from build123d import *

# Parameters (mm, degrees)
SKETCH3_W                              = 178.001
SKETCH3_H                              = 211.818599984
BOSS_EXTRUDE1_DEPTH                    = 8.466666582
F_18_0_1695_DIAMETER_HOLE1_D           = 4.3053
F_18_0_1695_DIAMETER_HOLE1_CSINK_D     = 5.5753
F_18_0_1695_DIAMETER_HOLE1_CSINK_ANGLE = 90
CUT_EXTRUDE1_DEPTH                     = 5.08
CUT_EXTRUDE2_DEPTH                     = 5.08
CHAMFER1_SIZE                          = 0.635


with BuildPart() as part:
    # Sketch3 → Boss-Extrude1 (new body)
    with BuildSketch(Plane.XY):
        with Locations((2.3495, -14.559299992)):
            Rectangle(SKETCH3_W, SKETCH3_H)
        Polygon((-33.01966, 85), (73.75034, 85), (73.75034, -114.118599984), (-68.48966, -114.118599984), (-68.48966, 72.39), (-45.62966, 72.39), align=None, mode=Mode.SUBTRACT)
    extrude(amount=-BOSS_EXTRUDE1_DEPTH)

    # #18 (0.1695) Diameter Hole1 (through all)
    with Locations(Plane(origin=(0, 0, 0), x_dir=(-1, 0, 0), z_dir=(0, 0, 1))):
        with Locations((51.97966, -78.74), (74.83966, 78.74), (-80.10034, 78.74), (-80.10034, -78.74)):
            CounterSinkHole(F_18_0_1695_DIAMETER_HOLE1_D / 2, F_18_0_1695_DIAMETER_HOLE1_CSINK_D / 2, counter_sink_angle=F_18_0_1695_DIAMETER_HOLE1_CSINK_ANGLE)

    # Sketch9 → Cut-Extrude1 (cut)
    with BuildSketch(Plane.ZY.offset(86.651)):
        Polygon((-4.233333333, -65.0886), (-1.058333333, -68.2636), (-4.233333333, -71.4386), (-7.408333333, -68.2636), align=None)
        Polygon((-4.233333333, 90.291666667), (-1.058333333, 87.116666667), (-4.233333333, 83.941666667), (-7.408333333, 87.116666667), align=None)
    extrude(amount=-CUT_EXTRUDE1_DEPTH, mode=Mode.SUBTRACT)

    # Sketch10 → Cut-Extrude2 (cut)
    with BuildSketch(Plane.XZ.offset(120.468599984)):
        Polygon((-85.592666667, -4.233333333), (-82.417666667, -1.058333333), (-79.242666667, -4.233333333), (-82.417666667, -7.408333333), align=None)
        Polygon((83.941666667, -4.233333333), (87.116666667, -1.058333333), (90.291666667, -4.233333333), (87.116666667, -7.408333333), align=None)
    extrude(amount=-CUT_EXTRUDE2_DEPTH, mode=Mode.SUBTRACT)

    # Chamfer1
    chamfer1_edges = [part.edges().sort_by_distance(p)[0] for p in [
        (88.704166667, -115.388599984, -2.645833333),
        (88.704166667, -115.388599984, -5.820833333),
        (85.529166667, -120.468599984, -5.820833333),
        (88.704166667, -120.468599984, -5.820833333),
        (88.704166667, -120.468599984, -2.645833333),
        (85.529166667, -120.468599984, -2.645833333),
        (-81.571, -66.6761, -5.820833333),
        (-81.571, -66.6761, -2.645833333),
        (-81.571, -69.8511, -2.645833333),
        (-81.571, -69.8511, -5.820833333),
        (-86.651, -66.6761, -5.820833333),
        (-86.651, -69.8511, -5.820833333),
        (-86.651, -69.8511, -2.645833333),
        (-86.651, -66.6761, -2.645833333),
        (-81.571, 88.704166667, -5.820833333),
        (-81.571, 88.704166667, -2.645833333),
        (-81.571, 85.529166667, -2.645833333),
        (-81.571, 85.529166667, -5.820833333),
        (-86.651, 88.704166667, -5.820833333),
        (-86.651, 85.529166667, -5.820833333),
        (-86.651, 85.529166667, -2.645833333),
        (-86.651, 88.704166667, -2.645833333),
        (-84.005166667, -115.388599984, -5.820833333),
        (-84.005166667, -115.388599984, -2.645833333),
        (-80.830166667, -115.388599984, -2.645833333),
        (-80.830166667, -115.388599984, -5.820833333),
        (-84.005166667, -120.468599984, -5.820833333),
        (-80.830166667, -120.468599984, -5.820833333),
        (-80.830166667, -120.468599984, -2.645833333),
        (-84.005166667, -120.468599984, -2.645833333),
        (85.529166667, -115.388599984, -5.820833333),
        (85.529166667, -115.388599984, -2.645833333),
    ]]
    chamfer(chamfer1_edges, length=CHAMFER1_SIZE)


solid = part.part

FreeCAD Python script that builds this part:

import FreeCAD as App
import Part
import Sketcher

V = App.Vector
Q = App.Units.Quantity


def edges_at(feature, points):
    """Names of the edges that pass closest to the given points."""
    edges = feature.Shape.Edges
    near = lambda p: min(range(len(edges)), key=lambda i: edges[i].distToShape(Part.Vertex(*p))[0])
    return sorted({f"Edge{near(p) + 1}" for p in points})


def add_polygon(sketch, points):
    """Adds a closed chain of lines whose ends are joined by coincident constraints."""
    first, n = sketch.GeometryCount, len(points)
    for a, b in zip(points, points[1:] + points[:1]):
        sketch.addGeometry(Part.LineSegment(App.Vector(*a, 0), App.Vector(*b, 0)), False)
    for i in range(n):
        sketch.addConstraint(Sketcher.Constraint("Coincident", first + i, 2, first + (i + 1) % n, 1))

doc = App.newDocument("Part")
body = doc.addObject("PartDesign::Body", "Body")

# Sketch on XY plane
sketch1 = body.newObject("Sketcher::SketchObject", "Sketch")
sketch1.AttachmentSupport = (doc.getObject("XY_Plane"), [""])
sketch1.MapMode = "FlatFace"
add_polygon(sketch1, [(-87, 91), (-87, -120), (91, -120), (91, 91)])  # lines 0-3
add_polygon(sketch1, [(-46, 72), (-33, 85), (74, 85), (74, -114), (-68, -114), (-68, 72)])  # lines 4-9
sketch1.addConstraint(Sketcher.Constraint("Vertical", 0))
sketch1.addConstraint(Sketcher.Constraint("Horizontal", 1))
sketch1.addConstraint(Sketcher.Constraint("Vertical", 2))
sketch1.addConstraint(Sketcher.Constraint("Horizontal", 3))
sketch1.addConstraint(Sketcher.Constraint("Horizontal", 5))
sketch1.addConstraint(Sketcher.Constraint("Vertical", 6))
sketch1.addConstraint(Sketcher.Constraint("Horizontal", 7))
sketch1.addConstraint(Sketcher.Constraint("Vertical", 8))
sketch1.addConstraint(Sketcher.Constraint("Horizontal", 9))
sketch1.addConstraint(Sketcher.Constraint("DistanceX", 7, 2, 7, 1, Q("5.6 in")))
sketch1.addConstraint(Sketcher.Constraint("DistanceX", 9, 1, 9, 2, Q("0.9 in")))
sketch1.addConstraint(Sketcher.Constraint("Angle", 4, Q("45 deg")))
sketch1.addConstraint(Sketcher.Constraint("DistanceY", -1, 1, 8, 2, Q("2.85 in")))
sketch1.addConstraint(Sketcher.Constraint("DistanceY", 4, 2, 3, 2, Q("0.25 in")))
sketch1.addConstraint(Sketcher.Constraint("DistanceY", 1, 2, 6, 2, Q("0.25 in")))
sketch1.addConstraint(Sketcher.Constraint("DistanceX", 1, 1, 1, 2, 178.001))
sketch1.addConstraint(Sketcher.Constraint("DistanceX", 5, 1, 5, 2, 106.77))
sketch1.addConstraint(Sketcher.Constraint("DistanceY", 0, 2, 0, 1, 211.8186))
sketch1.addConstraint(Sketcher.Constraint("DistanceX", 5, 2, 2, 2, Q("0.6929 in")))
sketch1.addConstraint(Sketcher.Constraint("DistanceX", 0, 2, -1, 1, 86.651))
pad1 = body.newObject("PartDesign::Pad", "Pad")
pad1.Profile = sketch1
pad1.Length = 8.466667
pad1.Reversed = True

# Sketch on XY plane
sketch2 = body.newObject("Sketcher::SketchObject", "Sketch001")
sketch2.AttachmentSupport = (doc.getObject("XY_Plane"), [""])
sketch2.MapMode = "FlatFace"
sketch2.addGeometry(Part.Circle(V(-52, 78.7, 0), V(0, 0, 1), 2.2), False)
sketch2.addGeometry(Part.Circle(V(-74.8, -78.7, 0), V(0, 0, 1), 2.2), False)
sketch2.addGeometry(Part.Circle(V(80.1, -78.7, 0), V(0, 0, 1), 2.2), False)
sketch2.addGeometry(Part.Circle(V(80.1, 78.7, 0), V(0, 0, 1), 2.2), False)
sketch2.addConstraint(Sketcher.Constraint("Equal", 0, 1))
sketch2.addConstraint(Sketcher.Constraint("Equal", 1, 2))
sketch2.addConstraint(Sketcher.Constraint("Equal", 2, 3))
sketch2.addConstraint(Sketcher.Constraint("Symmetric", 2, 3, 3, 3, -1))
sketch2.addConstraint(Sketcher.Constraint("Horizontal", 1, 3, 2, 3))
sketch2.addConstraint(Sketcher.Constraint("Horizontal", 0, 3, 3, 3))
sketch2.addConstraint(Sketcher.Constraint("Diameter", 0, Q("0.1695 in")))
sketch2.addConstraint(Sketcher.Constraint("DistanceY", -1, 1, 0, 3, Q("3.1 in")))
sketch2.addConstraint(Sketcher.Constraint("DistanceX", 1, 3, 0, 3, Q("0.9 in")))
sketch2.addConstraint(Sketcher.Constraint("DistanceX", 1, 3, 2, 3, Q("6.1 in")))
sketch2.addConstraint(Sketcher.Constraint("DistanceX", 0, 3, -1, 1, 51.97966))
doc.recompute()
hole = body.newObject("PartDesign::Hole", "Hole")
hole.Profile = sketch2
hole.ThreadType = "None"
hole.Diameter = Q("0.1695 in")
hole.DepthType = "ThroughAll"
hole.HoleCutType = "Countersink"
hole.HoleCutDiameter = Q("0.2195 in")
hole.HoleCutCountersinkAngle = 90

# Sketch on YZ plane
sketch3 = body.newObject("Sketcher::SketchObject", "Sketch002")
sketch3.AttachmentSupport = (doc.getObject("YZ_Plane"), [""])
sketch3.MapMode = "FlatFace"
sketch3.AttachmentOffset = App.Placement(V(0, 0, -86.651), App.Rotation())
add_polygon(sketch3, [(-68.3, -1.1), (-65.1, -4.2), (-68.3, -7.4), (-71.4, -4.2)])  # lines 0-3
add_polygon(sketch3, [(87.1, -1.1), (90.3, -4.2), (87.1, -7.4), (83.9, -4.2)])  # lines 4-7
sketch3.addConstraint(Sketcher.Constraint("Perpendicular", 0, 1))
sketch3.addConstraint(Sketcher.Constraint("Perpendicular", 1, 2))
sketch3.addConstraint(Sketcher.Constraint("Perpendicular", 2, 3))
sketch3.addConstraint(Sketcher.Constraint("Perpendicular", 3, 4))
sketch3.addConstraint(Sketcher.Constraint("Perpendicular", 4, 5))
sketch3.addConstraint(Sketcher.Constraint("Perpendicular", 5, 6))
sketch3.addConstraint(Sketcher.Constraint("Perpendicular", 6, 7))
sketch3.addConstraint(Sketcher.Constraint("Horizontal", 0, 2, 2, 2))
sketch3.addConstraint(Sketcher.Constraint("Horizontal", 2, 2, 4, 2))
sketch3.addConstraint(Sketcher.Constraint("Horizontal", 1, 2, 5, 2))
sketch3.addConstraint(Sketcher.Constraint("Horizontal", 4, 2, 6, 2))
sketch3.addConstraint(Sketcher.Constraint("Vertical", 1, 2, 3, 2))
sketch3.addConstraint(Sketcher.Constraint("DistanceX", 2, 2, 0, 2, Q("0.25 in")))
sketch3.addConstraint(Sketcher.Constraint("DistanceX", 0, 2, -1, 1, 65.0886))
sketch3.addConstraint(Sketcher.Constraint("DistanceY", 0, 2, -1, 1, 4.233333))
sketch3.addConstraint(Sketcher.Constraint("DistanceX", -1, 1, 4, 2, 90.291667))
pocket1 = body.newObject("PartDesign::Pocket", "Pocket")
pocket1.Profile = sketch3
pocket1.Length = Q("0.2 in")
pocket1.Reversed = True

# Sketch on XZ plane
sketch4 = body.newObject("Sketcher::SketchObject", "Sketch003")
sketch4.AttachmentSupport = (doc.getObject("XZ_Plane"), [""])
sketch4.MapMode = "FlatFace"
sketch4.AttachmentOffset = App.Placement(V(0, 0, 120.4686), App.Rotation())
add_polygon(sketch4, [(-82.4, -1.1), (-85.6, -4.2), (-82.4, -7.4), (-79.2, -4.2)])  # lines 0-3
add_polygon(sketch4, [(87.1, -1.1), (83.9, -4.2), (87.1, -7.4), (90.3, -4.2)])  # lines 4-7
sketch4.addConstraint(Sketcher.Constraint("Perpendicular", 0, 1))
sketch4.addConstraint(Sketcher.Constraint("Perpendicular", 1, 2))
sketch4.addConstraint(Sketcher.Constraint("Perpendicular", 2, 3))
sketch4.addConstraint(Sketcher.Constraint("Perpendicular", 3, 4))
sketch4.addConstraint(Sketcher.Constraint("Perpendicular", 4, 5))
sketch4.addConstraint(Sketcher.Constraint("Perpendicular", 5, 6))
sketch4.addConstraint(Sketcher.Constraint("Perpendicular", 6, 7))
sketch4.addConstraint(Sketcher.Constraint("Horizontal", 0, 2, 2, 2))
sketch4.addConstraint(Sketcher.Constraint("Horizontal", 2, 2, 4, 2))
sketch4.addConstraint(Sketcher.Constraint("Horizontal", 1, 2, 5, 2))
sketch4.addConstraint(Sketcher.Constraint("Horizontal", 4, 2, 6, 2))
sketch4.addConstraint(Sketcher.Constraint("Vertical", 1, 2, 3, 2))
sketch4.addConstraint(Sketcher.Constraint("DistanceX", 0, 2, 2, 2, Q("0.25 in")))
sketch4.addConstraint(Sketcher.Constraint("DistanceX", 0, 2, -1, 1, 85.592667))
sketch4.addConstraint(Sketcher.Constraint("DistanceY", 0, 2, -1, 1, 4.233333))
sketch4.addConstraint(Sketcher.Constraint("DistanceX", -1, 1, 4, 2, 83.941667))
pocket2 = body.newObject("PartDesign::Pocket", "Pocket001")
pocket2.Profile = sketch4
pocket2.Length = Q("0.2 in")
doc.recompute()

chamfer = body.newObject("PartDesign::Chamfer", "Chamfer")
chamfer.Base = (pocket2, edges_at(pocket2, [
    (88.704, -115.389, -2.646),
    (88.704, -115.389, -5.821),
    (85.529, -120.469, -5.821),
    (88.704, -120.469, -5.821),
    (88.704, -120.469, -2.646),
    (85.529, -120.469, -2.646),
    (-81.571, -66.676, -5.821),
    (-81.571, -66.676, -2.646),
    (-81.571, -69.851, -2.646),
    (-81.571, -69.851, -5.821),
    (-86.651, -66.676, -5.821),
    (-86.651, -69.851, -5.821),
    (-86.651, -69.851, -2.646),
    (-86.651, -66.676, -2.646),
    (-81.571, 88.704, -5.821),
    (-81.571, 88.704, -2.646),
    (-81.571, 85.529, -2.646),
    (-81.571, 85.529, -5.821),
    (-86.651, 88.704, -5.821),
    (-86.651, 85.529, -5.821),
    (-86.651, 85.529, -2.646),
    (-86.651, 88.704, -2.646),
    (-84.005, -115.389, -5.821),
    (-84.005, -115.389, -2.646),
    (-80.83, -115.389, -2.646),
    (-80.83, -115.389, -5.821),
    (-84.005, -120.469, -5.821),
    (-80.83, -120.469, -5.821),
    (-80.83, -120.469, -2.646),
    (-84.005, -120.469, -2.646),
    (85.529, -115.389, -5.821),
    (85.529, -115.389, -2.646),
]))
chamfer.Size = Q("0.025 in")

doc.recompute()
